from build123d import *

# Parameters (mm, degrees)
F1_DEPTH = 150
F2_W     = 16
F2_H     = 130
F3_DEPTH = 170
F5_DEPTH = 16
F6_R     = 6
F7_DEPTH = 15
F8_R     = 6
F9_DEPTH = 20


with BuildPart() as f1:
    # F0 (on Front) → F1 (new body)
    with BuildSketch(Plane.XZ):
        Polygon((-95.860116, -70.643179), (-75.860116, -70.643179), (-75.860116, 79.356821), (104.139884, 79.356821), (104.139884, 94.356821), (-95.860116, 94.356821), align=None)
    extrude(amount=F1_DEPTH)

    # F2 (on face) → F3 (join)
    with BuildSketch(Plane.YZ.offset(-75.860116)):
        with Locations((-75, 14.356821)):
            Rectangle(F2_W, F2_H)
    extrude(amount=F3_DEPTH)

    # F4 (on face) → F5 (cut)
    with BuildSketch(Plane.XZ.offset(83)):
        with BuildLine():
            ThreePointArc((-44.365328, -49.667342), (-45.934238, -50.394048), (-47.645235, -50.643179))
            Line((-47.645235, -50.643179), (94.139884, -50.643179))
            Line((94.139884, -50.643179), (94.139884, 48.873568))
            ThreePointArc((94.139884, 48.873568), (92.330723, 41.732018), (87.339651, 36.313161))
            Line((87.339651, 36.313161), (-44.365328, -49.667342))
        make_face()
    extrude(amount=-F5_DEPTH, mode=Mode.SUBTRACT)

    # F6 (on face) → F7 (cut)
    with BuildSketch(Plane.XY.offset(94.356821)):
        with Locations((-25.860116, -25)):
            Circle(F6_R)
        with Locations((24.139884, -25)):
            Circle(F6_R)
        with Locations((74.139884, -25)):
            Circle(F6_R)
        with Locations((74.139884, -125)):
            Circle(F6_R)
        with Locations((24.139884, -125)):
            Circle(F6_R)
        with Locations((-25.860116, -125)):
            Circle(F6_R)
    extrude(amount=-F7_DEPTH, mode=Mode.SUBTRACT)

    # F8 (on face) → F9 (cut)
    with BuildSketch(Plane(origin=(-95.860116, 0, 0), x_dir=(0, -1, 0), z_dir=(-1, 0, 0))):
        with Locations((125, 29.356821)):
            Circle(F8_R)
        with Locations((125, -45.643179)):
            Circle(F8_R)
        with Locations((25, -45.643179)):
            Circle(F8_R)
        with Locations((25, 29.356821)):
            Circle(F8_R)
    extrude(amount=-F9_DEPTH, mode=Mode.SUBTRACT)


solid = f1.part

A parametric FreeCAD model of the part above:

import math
import FreeCAD as App
import Part
import Sketcher
from FreeCAD import Vector


def add_polygon(sketch, points):
    """Adds a closed chain of lines whose ends are joined by coincident constraints."""
    first, n = sketch.GeometryCount, len(points)
    for a, b in zip(points, points[1:] + points[:1]):
        sketch.addGeometry(Part.LineSegment(App.Vector(*a, 0), App.Vector(*b, 0)), False)
    for i in range(n):
        sketch.addConstraint(Sketcher.Constraint("Coincident", first + i, 2, first + (i + 1) % n, 1))

doc = App.newDocument("Part")
params = doc.addObject("Spreadsheet::Sheet", "Params")
for row, (alias, value) in enumerate([
    ("sketch1_width", "20 mm"),
    ("sketch1_width2", "180 mm"),
    ("sketch1_height", "150 mm"),
    ("sketch1_height2", "15 mm"),
    ("pad1_length", "150 mm"),
    ("sketch2_width", "16 mm"),
    ("sketch2_height", "130 mm"),
    ("pad2_length", "170 mm"),
    ("pocket1_length", "16 mm"),
    ("sketch4_diameter", "12 mm"),
    ("pocket2_length", "15 mm"),
    ("sketch5_diameter", "12 mm"),
    ("pocket3_length", "20 mm"),
], start=1):
    params.set(f"A{row}", alias)
    params.set(f"B{row}", "=" + value)
    params.setAlias(f"B{row}", alias)

body = doc.addObject("PartDesign::Body", "Body")

# Sketch on XZ plane
sketch1 = body.newObject("Sketcher::SketchObject", "Sketch")
sketch1.AttachmentSupport = (doc.getObject("XZ_Plane"), [""])
sketch1.MapMode = "FlatFace"
add_polygon(sketch1, [(-96, -71), (-76, -71), (-76, 79), (104, 79), (104, 94), (-96, 94)])  # lines 0-5
sketch1.addConstraint([
    Sketcher.Constraint("Horizontal", 0),
    Sketcher.Constraint("Vertical", 1),
    Sketcher.Constraint("Horizontal", 2),
    Sketcher.Constraint("Vertical", 3),
    Sketcher.Constraint("Horizontal", 4),
    Sketcher.Constraint("Vertical", 5),
    Sketcher.Constraint("DistanceX", 0, 1, 0, 2, 20.0),
    Sketcher.Constraint("DistanceX", 2, 1, 2, 2, 180.0),
    Sketcher.Constraint("DistanceY", 1, 1, 1, 2, 150.0),
    Sketcher.Constraint("DistanceY", 3, 1, 3, 2, 15.0),
    Sketcher.Constraint("DistanceY", 0, 2, -1, 1, 70.643179),
    Sketcher.Constraint("DistanceX", 0, 2, -1, 1, 75.860116),
])
sketch1.setExpression("Constraints[12]", "Params.sketch1_width")
sketch1.setExpression("Constraints[13]", "Params.sketch1_width2")
sketch1.setExpression("Constraints[14]", "Params.sketch1_height")
sketch1.setExpression("Constraints[15]", "Params.sketch1_height2")
pad1 = body.newObject("PartDesign::Pad", "Pad")
pad1.Profile = sketch1
pad1.setExpression("Length", "Params.pad1_length")

# Sketch on YZ plane
sketch2 = body.newObject("Sketcher::SketchObject", "Sketch001")
sketch2.AttachmentSupport = (doc.getObject("YZ_Plane"), [""])
sketch2.MapMode = "FlatFace"
sketch2.AttachmentOffset = App.Placement(Vector(0, 0, -75.860116), App.Rotation())
add_polygon(sketch2, [(-83, 79), (-83, -51), (-67, -51), (-67, 79)])  # lines 0-3
sketch2.addConstraint([
    Sketcher.Constraint("Vertical", 0),
    Sketcher.Constraint("Horizontal", 1),
    Sketcher.Constraint("Vertical", 2),
    Sketcher.Constraint("Horizontal", 3),
    Sketcher.Constraint("DistanceX", 1, 1, 1, 2, 16.0),
    Sketcher.Constraint("DistanceY", 0, 2, 0, 1, 130.0),
    Sketcher.Constraint("DistanceX", 0, 2, -1, 1, 83.0),
    Sketcher.Constraint("DistanceY", 0, 2, -1, 1, 50.643179),
])
sketch2.setExpression("Constraints[8]", "Params.sketch2_width")
sketch2.setExpression("Constraints[9]", "Params.sketch2_height")
pad2 = body.newObject("PartDesign::Pad", "Pad001")
pad2.Profile = sketch2
pad2.setExpression("Length", "Params.pad2_length")

# Sketch on XZ plane
sketch3 = body.newObject("Sketcher::SketchObject", "Sketch002")
sketch3.AttachmentSupport = (doc.getObject("XZ_Plane"), [""])
sketch3.MapMode = "FlatFace"
sketch3.AttachmentOffset = App.Placement(Vector(0, 0, 83), App.Rotation())
sketch3.addGeometry([
    Part.ArcOfCircle(Part.Circle(Vector(-47.6, -44.6, 0), Vector(0, 0, 1), 6), math.radians(-90), math.radians(-57)),  # 0
    Part.LineSegment(Vector(-47.6, -50.6, 0), Vector(94.1, -50.6, 0)),  # 1
    Part.LineSegment(Vector(94.1, -50.6, 0), Vector(94.1, 48.9, 0)),  # 2
    Part.ArcOfCircle(Part.Circle(Vector(79.1, 48.9, 0), Vector(0, 0, 1), 15), math.radians(-57), math.radians(0)),  # 3
    Part.LineSegment(Vector(87.3, 36.3, 0), Vector(-44.4, -49.7, 0)),  # 4
], False)
sketch3.addConstraint([
    Sketcher.Constraint("Tangent", 0, 1, 1, 1),
    Sketcher.Constraint("Coincident", 1, 2, 2, 1),
    Sketcher.Constraint("Tangent", 2, 2, 3, 2),
    Sketcher.Constraint("Tangent", 3, 1, 4, 1),
    Sketcher.Constraint("Tangent", 4, 2, 0, 2),
    Sketcher.Constraint("Horizontal", 1),
    Sketcher.Constraint("Vertical", 2),
    Sketcher.Constraint("Radius", 0, 5.999994),
    Sketcher.Constraint("Radius", 3, 15.000008),
    Sketcher.Constraint("DistanceX", 1, 1, 1, 2, 141.785119),
    Sketcher.Constraint("Distance", 4, 157.285881),
    Sketcher.Constraint("DistanceY", 0, 1, -1, 1, 50.643179),
    Sketcher.Constraint("DistanceX", -1, 1, 3, 1, 87.339651),
])
pocket1 = body.newObject("PartDesign::Pocket", "Pocket")
pocket1.Profile = sketch3
pocket1.setExpression("Length", "Params.pocket1_length")

# Sketch on XY plane
sketch4 = body.newObject("Sketcher::SketchObject", "Sketch003")
sketch4.AttachmentSupport = (doc.getObject("XY_Plane"), [""])
sketch4.MapMode = "FlatFace"
sketch4.AttachmentOffset = App.Placement(Vector(0, 0, 94.356821), App.Rotation())
sketch4.addGeometry([
    Part.Circle(Vector(-26, -25, 0), Vector(0, 0, 1), 6),  # 0
    Part.Circle(Vector(24, -25, 0), Vector(0, 0, 1), 6),  # 1
    Part.Circle(Vector(74, -25, 0), Vector(0, 0, 1), 6),  # 2
    Part.Circle(Vector(74, -125, 0), Vector(0, 0, 1), 6),  # 3
    Part.Circle(Vector(24, -125, 0), Vector(0, 0, 1), 6),  # 4
    Part.Circle(Vector(-26, -125, 0), Vector(0, 0, 1), 6),  # 5
], False)
sketch4.addConstraint([
    Sketcher.Constraint("Equal", 0, 1),
    Sketcher.Constraint("Equal", 1, 2),
    Sketcher.Constraint("Equal", 2, 3),
    Sketcher.Constraint("Equal", 3, 4),
    Sketcher.Constraint("Equal", 4, 5),
    Sketcher.Constraint("Horizontal", 0, 3, 1, 3),
    Sketcher.Constraint("Horizontal", 1, 3, 2, 3),
    Sketcher.Constraint("Horizontal", 3, 3, 4, 3),
    Sketcher.Constraint("Horizontal", 4, 3, 5, 3),
    Sketcher.Constraint("Vertical", 2, 3, 3, 3),
    Sketcher.Constraint("Vertical", 1, 3, 4, 3),
    Sketcher.Constraint("Vertical", 0, 3, 5, 3),
    Sketcher.Constraint("Diameter", 0, 12.0),
    Sketcher.Constraint("DistanceY", 0, 3, -1, 1, 25.0),
    Sketcher.Constraint("DistanceY", 3, 3, -1, 1, 125.0),
    Sketcher.Constraint("DistanceX", 0, 3, 1, 3, 50.0),
    Sketcher.Constraint("DistanceX", 1, 3, 2, 3, 50.0),
    Sketcher.Constraint("DistanceX", 0, 3, -1, 1, 25.860116),
])
sketch4.setExpression("Constraints[12]", "Params.sketch4_diameter")
pocket2 = body.newObject("PartDesign::Pocket", "Pocket001")
pocket2.Profile = sketch4
pocket2.setExpression("Length", "Params.pocket2_length")

# Sketch on YZ plane
sketch5 = body.newObject("Sketcher::SketchObject", "Sketch004")
sketch5.AttachmentSupport = (doc.getObject("YZ_Plane"), [""])
sketch5.MapMode = "FlatFace"
sketch5.AttachmentOffset = App.Placement(Vector(0, 0, -95.860116), App.Rotation())
sketch5.addGeometry([
    Part.Circle(Vector(-125, 29, 0), Vector(0, 0, 1), 6),
    Part.Circle(Vector(-125, -46, 0), Vector(0, 0, 1), 6),
    Part.Circle(Vector(-25, -46, 0), Vector(0, 0, 1), 6),
    Part.Circle(Vector(-25, 29, 0), Vector(0, 0, 1), 6),
], False)
sketch5.addConstraint([
    Sketcher.Constraint("Equal", 0, 1),
    Sketcher.Constraint("Equal", 1, 2),
    Sketcher.Constraint("Equal", 2, 3),
    Sketcher.Constraint("Horizontal", 1, 3, 2, 3),
    Sketcher.Constraint("Horizontal", 0, 3, 3, 3),
    Sketcher.Constraint("Vertical", 0, 3, 1, 3),
    Sketcher.Constraint("Vertical", 2, 3, 3, 3),
    Sketcher.Constraint("Diameter", 0, 12.0),
    Sketcher.Constraint("DistanceX", 0, 3, -1, 1, 125.0),
    Sketcher.Constraint("DistanceX", 2, 3, -1, 1, 25.0),
    Sketcher.Constraint("DistanceY", 1, 3, 0, 3, 75.0),
    Sketcher.Constraint("DistanceY", -1, 1, 0, 3, 29.356821),
])
sketch5.setExpression("Constraints[7]", "Params.sketch5_diameter")
pocket3 = body.newObject("PartDesign::Pocket", "Pocket002")
pocket3.Profile = sketch5
pocket3.setExpression("Length", "Params.pocket3_length")
pocket3.Reversed = True

doc.recompute()
